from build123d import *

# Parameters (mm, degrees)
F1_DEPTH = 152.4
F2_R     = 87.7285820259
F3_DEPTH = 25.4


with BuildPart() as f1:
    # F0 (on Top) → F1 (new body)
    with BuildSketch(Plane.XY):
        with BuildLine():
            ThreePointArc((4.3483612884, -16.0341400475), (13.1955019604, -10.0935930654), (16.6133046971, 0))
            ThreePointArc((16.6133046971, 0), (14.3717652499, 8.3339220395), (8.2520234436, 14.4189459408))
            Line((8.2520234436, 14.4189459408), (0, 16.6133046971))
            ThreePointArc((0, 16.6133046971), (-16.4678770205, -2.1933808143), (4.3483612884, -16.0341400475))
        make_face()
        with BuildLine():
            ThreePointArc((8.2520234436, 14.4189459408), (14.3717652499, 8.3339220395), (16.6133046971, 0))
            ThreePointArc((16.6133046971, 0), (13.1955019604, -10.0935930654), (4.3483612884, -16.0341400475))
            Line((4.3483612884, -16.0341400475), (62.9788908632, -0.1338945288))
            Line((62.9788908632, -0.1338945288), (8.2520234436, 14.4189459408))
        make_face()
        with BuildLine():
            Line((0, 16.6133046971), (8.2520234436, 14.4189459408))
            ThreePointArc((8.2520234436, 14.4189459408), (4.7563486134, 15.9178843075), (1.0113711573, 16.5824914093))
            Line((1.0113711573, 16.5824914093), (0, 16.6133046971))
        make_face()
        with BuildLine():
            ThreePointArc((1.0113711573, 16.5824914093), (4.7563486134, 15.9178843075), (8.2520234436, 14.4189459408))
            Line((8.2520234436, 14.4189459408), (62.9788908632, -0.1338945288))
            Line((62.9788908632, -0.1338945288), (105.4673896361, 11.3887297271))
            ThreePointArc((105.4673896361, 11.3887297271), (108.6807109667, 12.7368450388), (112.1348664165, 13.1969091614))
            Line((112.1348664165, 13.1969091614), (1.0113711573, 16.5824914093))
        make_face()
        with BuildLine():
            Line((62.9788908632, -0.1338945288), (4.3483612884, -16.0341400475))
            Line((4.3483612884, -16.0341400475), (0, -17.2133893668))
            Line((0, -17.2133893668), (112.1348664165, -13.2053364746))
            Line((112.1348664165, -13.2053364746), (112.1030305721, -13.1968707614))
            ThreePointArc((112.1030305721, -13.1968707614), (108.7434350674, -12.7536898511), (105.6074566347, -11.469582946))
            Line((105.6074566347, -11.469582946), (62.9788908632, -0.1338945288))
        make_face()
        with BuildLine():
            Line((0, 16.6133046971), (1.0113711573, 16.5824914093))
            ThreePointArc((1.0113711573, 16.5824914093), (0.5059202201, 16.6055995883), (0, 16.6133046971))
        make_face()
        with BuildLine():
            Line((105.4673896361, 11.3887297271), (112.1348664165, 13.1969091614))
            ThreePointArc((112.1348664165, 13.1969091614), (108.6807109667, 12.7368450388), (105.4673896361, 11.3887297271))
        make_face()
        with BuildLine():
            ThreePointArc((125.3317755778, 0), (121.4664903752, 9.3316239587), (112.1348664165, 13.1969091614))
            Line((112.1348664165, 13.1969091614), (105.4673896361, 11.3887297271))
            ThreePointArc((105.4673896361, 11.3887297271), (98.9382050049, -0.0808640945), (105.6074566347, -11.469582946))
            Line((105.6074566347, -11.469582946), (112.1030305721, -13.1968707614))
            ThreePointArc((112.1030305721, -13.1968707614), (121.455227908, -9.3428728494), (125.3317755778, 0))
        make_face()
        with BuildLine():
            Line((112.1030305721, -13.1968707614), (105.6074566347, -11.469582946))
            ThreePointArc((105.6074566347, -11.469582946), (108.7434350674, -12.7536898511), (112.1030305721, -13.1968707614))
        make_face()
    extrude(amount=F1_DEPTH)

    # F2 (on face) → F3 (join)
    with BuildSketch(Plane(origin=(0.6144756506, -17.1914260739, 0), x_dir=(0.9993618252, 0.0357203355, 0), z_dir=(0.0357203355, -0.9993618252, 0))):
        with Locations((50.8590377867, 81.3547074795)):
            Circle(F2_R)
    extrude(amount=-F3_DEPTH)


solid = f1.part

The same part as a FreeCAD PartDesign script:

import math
import FreeCAD as App
import Part
import Sketcher

V = App.Vector
Q = App.Units.Quantity

doc = App.newDocument("Part")
body = doc.addObject("PartDesign::Body", "Body")

sketch1 = doc.addObject("Sketcher::SketchObject", "Sketch")
body.addObject(sketch1)
sketch1.AttachmentSupport = (doc.XY_Plane, [""])
sketch1.MapMode = "FlatFace"
sketch1.addGeometry([
    Part.LineSegment(V(112.134866, -13.205336, 0), V(112.103031, -13.196871, 0)),
    Part.ArcOfCircle(Part.Circle(V(112.134866, 0, 0), V(0, 0, 1), 13.196909), math.radians(-90.138219), math.radians(0)),
    Part.ArcOfCircle(Part.Circle(V(112.134866, 0, 0), V(0, 0, 1), 13.196909), math.radians(0), math.radians(90)),
    Part.LineSegment(V(112.134866, 13.196909, 0), V(1.011371, 16.582491, 0)),
    Part.ArcOfCircle(Part.Circle(V(0, 0, 0), V(0, 0, 1), 16.613305), math.radians(86.509836), math.radians(90)),
    Part.ArcOfCircle(Part.Circle(V(0, 0, 0), V(0, 0, 1), 16.613305), math.radians(90), math.radians(285.173315)),
    Part.LineSegment(V(4.348361, -16.03414, 0), V(0, -17.213389, 0)),
    Part.LineSegment(V(0, -17.213389, 0), V(112.134866, -13.205336, 0)),
    Part.ArcOfCircle(Part.Circle(V(112.134866, 0, 0), V(0, 0, 1), 13.196909), math.radians(120.346633), math.radians(240.355531)),
    Part.LineSegment(V(105.607457, -11.469583, 0), V(62.978891, -0.133895, 0)),
    Part.LineSegment(V(62.978891, -0.133895, 0), V(105.46739, 11.38873, 0)),
], False)
sketch1.addConstraint([
    Sketcher.Constraint("Coincident", 0, 2, 1, 1),
    Sketcher.Constraint("Tangent", 1, 2, 2, 1),
    Sketcher.Constraint("Coincident", 2, 2, 3, 1),
    Sketcher.Constraint("Coincident", 3, 2, 4, 1),
    Sketcher.Constraint("Tangent", 4, 2, 5, 1),
    Sketcher.Constraint("Tangent", 5, 2, 6, 1),
    Sketcher.Constraint("Coincident", 6, 2, 7, 1),
    Sketcher.Constraint("Coincident", 7, 2, 0, 1),
    Sketcher.Constraint("Coincident", 8, 2, 9, 1),
    Sketcher.Constraint("Coincident", 9, 2, 10, 1),
    Sketcher.Constraint("Coincident", 10, 2, 8, 1),
    Sketcher.Constraint("Coincident", 4, 3, -1, 1),
    Sketcher.Constraint("Coincident", 8, 3, 1, 3),
    Sketcher.Constraint("Equal", 1, 2),
    Sketcher.Constraint("Equal", 4, 5),
    Sketcher.Constraint("Equal", 2, 8),
    Sketcher.Constraint("PointOnObject", 1, 3, -1),
    Sketcher.Constraint("PointOnObject", 1, 2, -1),
    Sketcher.Constraint("PointOnObject", 4, 2, -2),
    Sketcher.Constraint("PointOnObject", 6, 2, -2),
    Sketcher.Constraint("Parallel", 0, 9),
    Sketcher.Constraint("Parallel", 6, 10),
    Sketcher.Constraint("Vertical", 8, 3, 2, 2),
    Sketcher.Constraint("Vertical", 2, 2, 7, 2),
    Sketcher.Constraint("Radius", 1, Q("13.196909 mm")),
    Sketcher.Constraint("Radius", 4, Q("16.613305 mm")),
    Sketcher.Constraint("DistanceX", -1, 1, 0, 2, Q("112.103031 mm")),
    Sketcher.Constraint("DistanceX", -1, 1, 3, 2, Q("1.011371 mm")),
    Sketcher.Constraint("DistanceX", -1, 1, 5, 2, Q("4.348361 mm")),
    Sketcher.Constraint("DistanceX", -1, 1, 9, 2, Q("62.978891 mm")),
    Sketcher.Constraint("DistanceX", -1, 1, 10, 2, Q("105.46739 mm")),
    Sketcher.Constraint("DistanceY", -1, 1, 10, 2, Q("11.38873 mm")),
    Sketcher.Constraint("DistanceX", 8, 2, 7, 2, Q("6.52741 mm")),
])
pad1 = doc.addObject("PartDesign::Pad", "Pad")
body.addObject(pad1)
pad1.Profile = sketch1
pad1.Length = Q("6 in")

sketch2 = doc.addObject("Sketcher::SketchObject", "Sketch001")
body.addObject(sketch2)
sketch2.Placement = App.Placement(V(0.614476, -17.191426, 0), App.Rotation(V(0.999361825, 0.035720335, 0), V(0, 0, 1), V(0.035720335, -0.999361825, 0), "ZXY"))
sketch2.addGeometry(Part.Circle(V(50.859038, 81.354707, 0), V(0, 0, 1), 87.728582), False)
sketch2.addConstraint([
    Sketcher.Constraint("Diameter", 0, Q("175.457164 mm")),
    Sketcher.Constraint("DistanceX", -1, 1, 0, 3, Q("50.859038 mm")),
    Sketcher.Constraint("DistanceY", -1, 1, 0, 3, Q("81.354707 mm")),
])
pad2 = doc.addObject("PartDesign::Pad", "Pad001")
body.addObject(pad2)
pad2.Profile = sketch2
pad2.Length = Q("1 in")
pad2.Reversed = True

doc.recompute()
